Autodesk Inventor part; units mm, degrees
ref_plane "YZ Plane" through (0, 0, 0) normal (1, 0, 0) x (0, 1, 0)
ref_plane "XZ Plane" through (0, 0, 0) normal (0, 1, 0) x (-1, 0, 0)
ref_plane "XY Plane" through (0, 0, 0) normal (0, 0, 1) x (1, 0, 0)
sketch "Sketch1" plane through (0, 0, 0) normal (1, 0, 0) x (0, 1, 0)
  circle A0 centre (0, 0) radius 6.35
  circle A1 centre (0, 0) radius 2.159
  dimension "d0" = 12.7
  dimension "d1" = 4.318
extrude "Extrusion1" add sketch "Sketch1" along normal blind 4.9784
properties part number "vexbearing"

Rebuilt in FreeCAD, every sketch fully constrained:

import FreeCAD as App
import Part
import Sketcher

V = App.Vector
Q = App.Units.Quantity

doc = App.newDocument("Part")
body = doc.addObject("PartDesign::Body", "Body")

# Sketch on YZ plane
sketch1 = body.newObject("Sketcher::SketchObject", "Sketch")
sketch1.AttachmentSupport = (doc.getObject("YZ_Plane"), [""])
sketch1.MapMode = "FlatFace"
sketch1.addGeometry(Part.Circle(V(0, 0, 0), V(0, 0, 1), 6.3), False)
sketch1.addGeometry(Part.Circle(V(0, 0, 0), V(0, 0, 1), 2.2), False)
sketch1.addConstraint(Sketcher.Constraint("Coincident", 0, 3, -1, 1))
sketch1.addConstraint(Sketcher.Constraint("Coincident", 1, 3, -1, 1))
sketch1.addConstraint(Sketcher.Constraint("Diameter", 0, Q("0.5 in")))
sketch1.addConstraint(Sketcher.Constraint("Diameter", 1, Q("0.17 in")))
pad1 = body.newObject("PartDesign::Pad", "Pad")
pad1.Profile = sketch1
pad1.Length = Q("0.196 in")

doc.recompute()
